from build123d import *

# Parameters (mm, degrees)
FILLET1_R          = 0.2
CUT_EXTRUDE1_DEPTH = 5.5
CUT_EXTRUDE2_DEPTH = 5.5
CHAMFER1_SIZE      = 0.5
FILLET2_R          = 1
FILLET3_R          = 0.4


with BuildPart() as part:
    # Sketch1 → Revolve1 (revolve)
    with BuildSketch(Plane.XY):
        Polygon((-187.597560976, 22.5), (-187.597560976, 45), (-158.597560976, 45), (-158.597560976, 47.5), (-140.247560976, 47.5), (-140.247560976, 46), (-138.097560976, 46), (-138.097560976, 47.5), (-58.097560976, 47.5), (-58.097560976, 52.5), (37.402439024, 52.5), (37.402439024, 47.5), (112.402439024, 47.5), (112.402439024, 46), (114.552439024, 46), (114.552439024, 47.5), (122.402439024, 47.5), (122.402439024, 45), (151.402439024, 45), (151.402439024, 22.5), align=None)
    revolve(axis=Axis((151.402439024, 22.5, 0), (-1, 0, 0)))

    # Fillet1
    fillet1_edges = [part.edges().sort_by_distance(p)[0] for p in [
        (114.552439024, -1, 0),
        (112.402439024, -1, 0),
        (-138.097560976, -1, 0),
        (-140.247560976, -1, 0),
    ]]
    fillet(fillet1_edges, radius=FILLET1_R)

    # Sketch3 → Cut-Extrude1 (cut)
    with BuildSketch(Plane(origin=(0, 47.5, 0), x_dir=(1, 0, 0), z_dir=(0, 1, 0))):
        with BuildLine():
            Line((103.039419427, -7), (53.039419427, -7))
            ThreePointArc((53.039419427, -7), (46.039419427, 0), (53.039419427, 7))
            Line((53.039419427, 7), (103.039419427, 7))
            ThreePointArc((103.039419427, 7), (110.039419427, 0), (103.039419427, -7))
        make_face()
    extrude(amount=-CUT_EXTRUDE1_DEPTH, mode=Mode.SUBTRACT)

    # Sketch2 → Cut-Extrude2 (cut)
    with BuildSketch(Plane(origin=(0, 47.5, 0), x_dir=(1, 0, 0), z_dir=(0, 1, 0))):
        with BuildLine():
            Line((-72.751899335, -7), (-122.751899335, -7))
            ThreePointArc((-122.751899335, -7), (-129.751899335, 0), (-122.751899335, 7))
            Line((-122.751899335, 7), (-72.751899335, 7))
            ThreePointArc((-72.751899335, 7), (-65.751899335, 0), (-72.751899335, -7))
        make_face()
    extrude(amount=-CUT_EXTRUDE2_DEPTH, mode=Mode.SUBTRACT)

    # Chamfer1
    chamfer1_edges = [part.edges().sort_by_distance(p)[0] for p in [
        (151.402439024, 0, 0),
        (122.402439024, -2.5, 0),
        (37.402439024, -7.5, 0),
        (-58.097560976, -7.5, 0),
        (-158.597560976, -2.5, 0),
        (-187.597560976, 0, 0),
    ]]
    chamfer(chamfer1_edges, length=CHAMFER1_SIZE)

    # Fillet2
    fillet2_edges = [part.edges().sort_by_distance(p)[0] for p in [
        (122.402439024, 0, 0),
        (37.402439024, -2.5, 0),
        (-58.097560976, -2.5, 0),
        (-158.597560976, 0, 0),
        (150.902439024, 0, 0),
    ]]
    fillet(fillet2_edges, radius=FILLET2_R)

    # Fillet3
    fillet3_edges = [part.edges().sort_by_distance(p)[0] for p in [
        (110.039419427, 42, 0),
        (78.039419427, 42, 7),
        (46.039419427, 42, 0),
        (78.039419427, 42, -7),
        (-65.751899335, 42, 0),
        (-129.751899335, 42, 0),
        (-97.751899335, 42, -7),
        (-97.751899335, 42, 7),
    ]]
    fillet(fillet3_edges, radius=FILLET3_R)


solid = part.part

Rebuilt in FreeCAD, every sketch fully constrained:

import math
import FreeCAD as App
import Part
import Sketcher


def edges_at(feature, points):
    """Names of the edges that pass closest to the given points."""
    edges = feature.Shape.Edges
    near = lambda p: min(range(len(edges)), key=lambda i: edges[i].distToShape(Part.Vertex(*p))[0])
    return sorted({f"Edge{near(p) + 1}" for p in points})

doc = App.newDocument("Part")
params = doc.addObject("Spreadsheet::Sheet", "Params")
for row, (alias, value) in enumerate([
    ("sketch1_width", "339 mm"),
    ("sketch1_width2", "29 mm"),
    ("sketch1_width3", "75 mm"),
    ("sketch1_width4", "80 mm"),
    ("sketch1_height", "5 mm"),
    ("revolution_angle", "360 deg"),
    ("fillet_radius", "0.2 mm"),
    ("sketch2_radius", "7 mm"),
    ("sketch2_width", "50 mm"),
    ("pocket1_length", "5.5 mm"),
    ("sketch3_radius", "7 mm"),
    ("sketch3_width", "50 mm"),
    ("pocket2_length", "5.5 mm"),
    ("chamfer_size", "0.5 mm"),
    ("fillet2_radius", "1 mm"),
    ("fillet3_radius", "0.4 mm"),
], start=1):
    params.set(f"A{row}", alias)
    params.set(f"B{row}", "=" + value)
    params.setAlias(f"B{row}", alias)

body = doc.addObject("PartDesign::Body", "Body")

sketch1 = body.newObject("Sketcher::SketchObject", "Sketch")
sketch1.AttachmentSupport = (doc.getObject("XY_Plane"), [""])
sketch1.MapMode = "FlatFace"
sketch1.addGeometry([
    Part.LineSegment(App.Vector(-187.597561, 45, 0), App.Vector(-187.597561, 22.5, 0)),
    Part.LineSegment(App.Vector(-187.597561, 22.5, 0), App.Vector(151.402439, 22.5, 0)),
    Part.LineSegment(App.Vector(151.402439, 22.5, 0), App.Vector(151.402439, 45, 0)),
    Part.LineSegment(App.Vector(151.402439, 45, 0), App.Vector(122.402439, 45, 0)),
    Part.LineSegment(App.Vector(122.402439, 45, 0), App.Vector(122.402439, 47.5, 0)),
    Part.LineSegment(App.Vector(122.402439, 47.5, 0), App.Vector(114.552439, 47.5, 0)),
    Part.LineSegment(App.Vector(114.552439, 47.5, 0), App.Vector(114.552439, 46, 0)),
    Part.LineSegment(App.Vector(114.552439, 46, 0), App.Vector(112.402439, 46, 0)),
    Part.LineSegment(App.Vector(112.402439, 46, 0), App.Vector(112.402439, 47.5, 0)),
    Part.LineSegment(App.Vector(112.402439, 47.5, 0), App.Vector(37.402439, 47.5, 0)),
    Part.LineSegment(App.Vector(37.402439, 47.5, 0), App.Vector(37.402439, 52.5, 0)),
    Part.LineSegment(App.Vector(37.402439, 52.5, 0), App.Vector(-58.097561, 52.5, 0)),
    Part.LineSegment(App.Vector(-58.097561, 52.5, 0), App.Vector(-58.097561, 47.5, 0)),
    Part.LineSegment(App.Vector(-58.097561, 47.5, 0), App.Vector(-138.097561, 47.5, 0)),
    Part.LineSegment(App.Vector(-138.097561, 47.5, 0), App.Vector(-138.097561, 46, 0)),
    Part.LineSegment(App.Vector(-138.097561, 46, 0), App.Vector(-140.247561, 46, 0)),
    Part.LineSegment(App.Vector(-140.247561, 46, 0), App.Vector(-140.247561, 47.5, 0)),
    Part.LineSegment(App.Vector(-140.247561, 47.5, 0), App.Vector(-158.597561, 47.5, 0)),
    Part.LineSegment(App.Vector(-158.597561, 47.5, 0), App.Vector(-158.597561, 45, 0)),
    Part.LineSegment(App.Vector(-158.597561, 45, 0), App.Vector(-187.597561, 45, 0)),
], False)
sketch1.addGeometry(Part.LineSegment(App.Vector(151.402439, 22.5, 0), App.Vector(-187.597561, 22.5, 0)), True)
sketch1.addConstraint([
    Sketcher.Constraint("Coincident", 0, 2, 1, 1),
    Sketcher.Constraint("Coincident", 1, 2, 2, 1),
    Sketcher.Constraint("Coincident", 2, 2, 3, 1),
    Sketcher.Constraint("Coincident", 3, 2, 4, 1),
    Sketcher.Constraint("Coincident", 4, 2, 5, 1),
    Sketcher.Constraint("Coincident", 5, 2, 6, 1),
    Sketcher.Constraint("Coincident", 6, 2, 7, 1),
    Sketcher.Constraint("Coincident", 7, 2, 8, 1),
    Sketcher.Constraint("Coincident", 8, 2, 9, 1),
    Sketcher.Constraint("Coincident", 9, 2, 10, 1),
    Sketcher.Constraint("Coincident", 10, 2, 11, 1),
    Sketcher.Constraint("Coincident", 11, 2, 12, 1),
    Sketcher.Constraint("Coincident", 12, 2, 13, 1),
    Sketcher.Constraint("Coincident", 13, 2, 14, 1),
    Sketcher.Constraint("Coincident", 14, 2, 15, 1),
    Sketcher.Constraint("Coincident", 15, 2, 16, 1),
    Sketcher.Constraint("Coincident", 16, 2, 17, 1),
    Sketcher.Constraint("Coincident", 17, 2, 18, 1),
    Sketcher.Constraint("Coincident", 18, 2, 19, 1),
    Sketcher.Constraint("Coincident", 19, 2, 0, 1),
    Sketcher.Constraint("Vertical", 0),
    Sketcher.Constraint("Horizontal", 1),
    Sketcher.Constraint("Vertical", 2),
    Sketcher.Constraint("Horizontal", 3),
    Sketcher.Constraint("Vertical", 4),
    Sketcher.Constraint("Horizontal", 5),
    Sketcher.Constraint("Vertical", 6),
    Sketcher.Constraint("Horizontal", 7),
    Sketcher.Constraint("Vertical", 8),
    Sketcher.Constraint("Horizontal", 9),
    Sketcher.Constraint("Vertical", 10),
    Sketcher.Constraint("Horizontal", 11),
    Sketcher.Constraint("Vertical", 12),
    Sketcher.Constraint("Horizontal", 13),
    Sketcher.Constraint("Vertical", 14),
    Sketcher.Constraint("Horizontal", 15),
    Sketcher.Constraint("Vertical", 16),
    Sketcher.Constraint("Horizontal", 17),
    Sketcher.Constraint("Vertical", 18),
    Sketcher.Constraint("Horizontal", 19),
    Sketcher.Constraint("Horizontal", 20),
    Sketcher.Constraint("Coincident", 20, 1, 1, 2),
    Sketcher.Constraint("Horizontal", 5, 2, 8, 2),
    Sketcher.Constraint("Horizontal", 9, 2, 12, 2),
    Sketcher.Constraint("Horizontal", 7, 2, 14, 2),
    Sketcher.Constraint("Horizontal", 13, 2, 16, 2),
    Sketcher.Constraint("Horizontal", 3, 2, 18, 2),
    Sketcher.Constraint("Vertical", 19, 2, 20, 2),
    Sketcher.Constraint("Equal", 7, 15),
    Sketcher.Constraint("Equal", 3, 19),
    Sketcher.Constraint("DistanceX", 1, 1, 1, 2, 339.0),
    Sketcher.Constraint("DistanceX", 3, 2, 3, 1, 29.0),
    Sketcher.Constraint("DistanceX", 9, 2, 9, 1, 75.0),
    Sketcher.Constraint("DistanceX", 13, 2, 13, 1, 80.0),
    Sketcher.Constraint("DistanceY", 10, 1, 10, 2, 5.0),
    Sketcher.Constraint("DistanceX", 11, 2, 11, 1, 95.5),
    Sketcher.Constraint("DistanceY", 0, 2, 0, 1, 22.5),
    Sketcher.Constraint("DistanceY", 4, 1, 4, 2, 2.5),
    Sketcher.Constraint("DistanceY", 6, 2, 6, 1, 1.5),
    Sketcher.Constraint("DistanceY", -1, 1, 2, 2, 45.0),
    Sketcher.Constraint("DistanceX", 7, 2, 3, 2, 10.0),
    Sketcher.Constraint("DistanceX", 5, 2, 5, 1, 7.85),
    Sketcher.Constraint("DistanceX", 0, 2, -1, 1, 187.597561),
])
sketch1.setExpression("Constraints[50]", "Params.sketch1_width")
sketch1.setExpression("Constraints[51]", "Params.sketch1_width2")
sketch1.setExpression("Constraints[52]", "Params.sketch1_width3")
sketch1.setExpression("Constraints[53]", "Params.sketch1_width4")
sketch1.setExpression("Constraints[54]", "Params.sketch1_height")
revolution = body.newObject("PartDesign::Revolution", "Revolution")
revolution.Profile = sketch1
revolution.ReferenceAxis = (sketch1, ["Axis0"])
revolution.setExpression("Angle", "Params.revolution_angle")
doc.recompute()

fillet = body.newObject("PartDesign::Fillet", "Fillet")
fillet.Base = (revolution, edges_at(revolution, [
    (114.552, -1, 0),
    (112.402, -1, 0),
    (-138.098, -1, 0),
    (-140.248, -1, 0),
]))
fillet.setExpression("Radius", "Params.fillet_radius")

sketch2 = body.newObject("Sketcher::SketchObject", "Sketch001")
sketch2.AttachmentSupport = (doc.getObject("XZ_Plane"), [""])
sketch2.MapMode = "FlatFace"
sketch2.AttachmentOffset = App.Placement(App.Vector(0, 0, -47.5), App.Rotation())
sketch2.addGeometry([
    Part.LineSegment(App.Vector(53.039419, 7, 0), App.Vector(103.039419, 7, 0)),
    Part.ArcOfCircle(Part.Circle(App.Vector(103.039419, 0, 0), App.Vector(0, 0, 1), 7), math.radians(-90), math.radians(90)),
    Part.LineSegment(App.Vector(103.039419, -7, 0), App.Vector(53.039419, -7, 0)),
    Part.ArcOfCircle(Part.Circle(App.Vector(53.039419, 0, 0), App.Vector(0, 0, 1), 7), math.radians(90), math.radians(270)),
], False)
sketch2.addConstraint([
    Sketcher.Constraint("Tangent", 0, 2, 1, 2),
    Sketcher.Constraint("Tangent", 1, 1, 2, 1),
    Sketcher.Constraint("Tangent", 2, 2, 3, 2),
    Sketcher.Constraint("Tangent", 3, 1, 0, 1),
    Sketcher.Constraint("Horizontal", 0),
    Sketcher.Constraint("Horizontal", 2),
    Sketcher.Constraint("PointOnObject", 1, 3, -1),
    Sketcher.Constraint("Radius", 1, 7.0),
    Sketcher.Constraint("DistanceX", 0, 1, 0, 2, 50.0),
    Sketcher.Constraint("DistanceX", -1, 1, 1, 3, 103.039419),
])
sketch2.setExpression("Constraints[7]", "Params.sketch2_radius")
sketch2.setExpression("Constraints[8]", "Params.sketch2_width")
pocket1 = body.newObject("PartDesign::Pocket", "Pocket")
pocket1.Profile = sketch2
pocket1.setExpression("Length", "Params.pocket1_length")
pocket1.Reversed = True

sketch3 = body.newObject("Sketcher::SketchObject", "Sketch002")
sketch3.AttachmentSupport = (doc.getObject("XZ_Plane"), [""])
sketch3.MapMode = "FlatFace"
sketch3.AttachmentOffset = App.Placement(App.Vector(0, 0, -47.5), App.Rotation())
sketch3.addGeometry([
    Part.LineSegment(App.Vector(-122.751899, 7, 0), App.Vector(-72.751899, 7, 0)),
    Part.ArcOfCircle(Part.Circle(App.Vector(-72.751899, 0, 0), App.Vector(0, 0, 1), 7), math.radians(-90), math.radians(90)),
    Part.LineSegment(App.Vector(-72.751899, -7, 0), App.Vector(-122.751899, -7, 0)),
    Part.ArcOfCircle(Part.Circle(App.Vector(-122.751899, 0, 0), App.Vector(0, 0, 1), 7), math.radians(90), math.radians(270)),
], False)
sketch3.addConstraint([
    Sketcher.Constraint("Tangent", 0, 2, 1, 2),
    Sketcher.Constraint("Tangent", 1, 1, 2, 1),
    Sketcher.Constraint("Tangent", 2, 2, 3, 2),
    Sketcher.Constraint("Tangent", 3, 1, 0, 1),
    Sketcher.Constraint("Horizontal", 0),
    Sketcher.Constraint("Horizontal", 2),
    Sketcher.Constraint("PointOnObject", 1, 3, -1),
    Sketcher.Constraint("Radius", 1, 7.0),
    Sketcher.Constraint("DistanceX", 0, 1, 0, 2, 50.0),
    Sketcher.Constraint("DistanceX", 1, 3, -1, 1, 72.751899),
])
sketch3.setExpression("Constraints[7]", "Params.sketch3_radius")
sketch3.setExpression("Constraints[8]", "Params.sketch3_width")
pocket2 = body.newObject("PartDesign::Pocket", "Pocket001")
pocket2.Profile = sketch3
pocket2.setExpression("Length", "Params.pocket2_length")
pocket2.Reversed = True
doc.recompute()

chamfer = body.newObject("PartDesign::Chamfer", "Chamfer")
chamfer.Base = (pocket2, edges_at(pocket2, [
    (151.402, 0, 0),
    (122.402, -2.5, 0),
    (37.402, -7.5, 0),
    (-58.098, -7.5, 0),
    (-158.598, -2.5, 0),
    (-187.598, 0, 0),
]))
chamfer.setExpression("Size", "Params.chamfer_size")
doc.recompute()

fillet2 = body.newObject("PartDesign::Fillet", "Fillet001")
fillet2.Base = (chamfer, edges_at(chamfer, [
    (122.402, 0, 0),
    (37.402, -2.5, 0),
    (-58.098, -2.5, 0),
    (-158.598, 0, 0),
    (150.902, 0, 0),
]))
fillet2.setExpression("Radius", "Params.fillet2_radius")
doc.recompute()

fillet3 = body.newObject("PartDesign::Fillet", "Fillet002")
fillet3.Base = (fillet2, edges_at(fillet2, [
    (110.039, 42, 0),
    (78.039, 42, 7),
    (46.039, 42, 0),
    (78.039, 42, -7),
    (-65.752, 42, 0),
    (-129.752, 42, 0),
    (-97.752, 42, -7),
    (-97.752, 42, 7),
]))
fillet3.setExpression("Radius", "Params.fillet3_radius")

doc.recompute()
